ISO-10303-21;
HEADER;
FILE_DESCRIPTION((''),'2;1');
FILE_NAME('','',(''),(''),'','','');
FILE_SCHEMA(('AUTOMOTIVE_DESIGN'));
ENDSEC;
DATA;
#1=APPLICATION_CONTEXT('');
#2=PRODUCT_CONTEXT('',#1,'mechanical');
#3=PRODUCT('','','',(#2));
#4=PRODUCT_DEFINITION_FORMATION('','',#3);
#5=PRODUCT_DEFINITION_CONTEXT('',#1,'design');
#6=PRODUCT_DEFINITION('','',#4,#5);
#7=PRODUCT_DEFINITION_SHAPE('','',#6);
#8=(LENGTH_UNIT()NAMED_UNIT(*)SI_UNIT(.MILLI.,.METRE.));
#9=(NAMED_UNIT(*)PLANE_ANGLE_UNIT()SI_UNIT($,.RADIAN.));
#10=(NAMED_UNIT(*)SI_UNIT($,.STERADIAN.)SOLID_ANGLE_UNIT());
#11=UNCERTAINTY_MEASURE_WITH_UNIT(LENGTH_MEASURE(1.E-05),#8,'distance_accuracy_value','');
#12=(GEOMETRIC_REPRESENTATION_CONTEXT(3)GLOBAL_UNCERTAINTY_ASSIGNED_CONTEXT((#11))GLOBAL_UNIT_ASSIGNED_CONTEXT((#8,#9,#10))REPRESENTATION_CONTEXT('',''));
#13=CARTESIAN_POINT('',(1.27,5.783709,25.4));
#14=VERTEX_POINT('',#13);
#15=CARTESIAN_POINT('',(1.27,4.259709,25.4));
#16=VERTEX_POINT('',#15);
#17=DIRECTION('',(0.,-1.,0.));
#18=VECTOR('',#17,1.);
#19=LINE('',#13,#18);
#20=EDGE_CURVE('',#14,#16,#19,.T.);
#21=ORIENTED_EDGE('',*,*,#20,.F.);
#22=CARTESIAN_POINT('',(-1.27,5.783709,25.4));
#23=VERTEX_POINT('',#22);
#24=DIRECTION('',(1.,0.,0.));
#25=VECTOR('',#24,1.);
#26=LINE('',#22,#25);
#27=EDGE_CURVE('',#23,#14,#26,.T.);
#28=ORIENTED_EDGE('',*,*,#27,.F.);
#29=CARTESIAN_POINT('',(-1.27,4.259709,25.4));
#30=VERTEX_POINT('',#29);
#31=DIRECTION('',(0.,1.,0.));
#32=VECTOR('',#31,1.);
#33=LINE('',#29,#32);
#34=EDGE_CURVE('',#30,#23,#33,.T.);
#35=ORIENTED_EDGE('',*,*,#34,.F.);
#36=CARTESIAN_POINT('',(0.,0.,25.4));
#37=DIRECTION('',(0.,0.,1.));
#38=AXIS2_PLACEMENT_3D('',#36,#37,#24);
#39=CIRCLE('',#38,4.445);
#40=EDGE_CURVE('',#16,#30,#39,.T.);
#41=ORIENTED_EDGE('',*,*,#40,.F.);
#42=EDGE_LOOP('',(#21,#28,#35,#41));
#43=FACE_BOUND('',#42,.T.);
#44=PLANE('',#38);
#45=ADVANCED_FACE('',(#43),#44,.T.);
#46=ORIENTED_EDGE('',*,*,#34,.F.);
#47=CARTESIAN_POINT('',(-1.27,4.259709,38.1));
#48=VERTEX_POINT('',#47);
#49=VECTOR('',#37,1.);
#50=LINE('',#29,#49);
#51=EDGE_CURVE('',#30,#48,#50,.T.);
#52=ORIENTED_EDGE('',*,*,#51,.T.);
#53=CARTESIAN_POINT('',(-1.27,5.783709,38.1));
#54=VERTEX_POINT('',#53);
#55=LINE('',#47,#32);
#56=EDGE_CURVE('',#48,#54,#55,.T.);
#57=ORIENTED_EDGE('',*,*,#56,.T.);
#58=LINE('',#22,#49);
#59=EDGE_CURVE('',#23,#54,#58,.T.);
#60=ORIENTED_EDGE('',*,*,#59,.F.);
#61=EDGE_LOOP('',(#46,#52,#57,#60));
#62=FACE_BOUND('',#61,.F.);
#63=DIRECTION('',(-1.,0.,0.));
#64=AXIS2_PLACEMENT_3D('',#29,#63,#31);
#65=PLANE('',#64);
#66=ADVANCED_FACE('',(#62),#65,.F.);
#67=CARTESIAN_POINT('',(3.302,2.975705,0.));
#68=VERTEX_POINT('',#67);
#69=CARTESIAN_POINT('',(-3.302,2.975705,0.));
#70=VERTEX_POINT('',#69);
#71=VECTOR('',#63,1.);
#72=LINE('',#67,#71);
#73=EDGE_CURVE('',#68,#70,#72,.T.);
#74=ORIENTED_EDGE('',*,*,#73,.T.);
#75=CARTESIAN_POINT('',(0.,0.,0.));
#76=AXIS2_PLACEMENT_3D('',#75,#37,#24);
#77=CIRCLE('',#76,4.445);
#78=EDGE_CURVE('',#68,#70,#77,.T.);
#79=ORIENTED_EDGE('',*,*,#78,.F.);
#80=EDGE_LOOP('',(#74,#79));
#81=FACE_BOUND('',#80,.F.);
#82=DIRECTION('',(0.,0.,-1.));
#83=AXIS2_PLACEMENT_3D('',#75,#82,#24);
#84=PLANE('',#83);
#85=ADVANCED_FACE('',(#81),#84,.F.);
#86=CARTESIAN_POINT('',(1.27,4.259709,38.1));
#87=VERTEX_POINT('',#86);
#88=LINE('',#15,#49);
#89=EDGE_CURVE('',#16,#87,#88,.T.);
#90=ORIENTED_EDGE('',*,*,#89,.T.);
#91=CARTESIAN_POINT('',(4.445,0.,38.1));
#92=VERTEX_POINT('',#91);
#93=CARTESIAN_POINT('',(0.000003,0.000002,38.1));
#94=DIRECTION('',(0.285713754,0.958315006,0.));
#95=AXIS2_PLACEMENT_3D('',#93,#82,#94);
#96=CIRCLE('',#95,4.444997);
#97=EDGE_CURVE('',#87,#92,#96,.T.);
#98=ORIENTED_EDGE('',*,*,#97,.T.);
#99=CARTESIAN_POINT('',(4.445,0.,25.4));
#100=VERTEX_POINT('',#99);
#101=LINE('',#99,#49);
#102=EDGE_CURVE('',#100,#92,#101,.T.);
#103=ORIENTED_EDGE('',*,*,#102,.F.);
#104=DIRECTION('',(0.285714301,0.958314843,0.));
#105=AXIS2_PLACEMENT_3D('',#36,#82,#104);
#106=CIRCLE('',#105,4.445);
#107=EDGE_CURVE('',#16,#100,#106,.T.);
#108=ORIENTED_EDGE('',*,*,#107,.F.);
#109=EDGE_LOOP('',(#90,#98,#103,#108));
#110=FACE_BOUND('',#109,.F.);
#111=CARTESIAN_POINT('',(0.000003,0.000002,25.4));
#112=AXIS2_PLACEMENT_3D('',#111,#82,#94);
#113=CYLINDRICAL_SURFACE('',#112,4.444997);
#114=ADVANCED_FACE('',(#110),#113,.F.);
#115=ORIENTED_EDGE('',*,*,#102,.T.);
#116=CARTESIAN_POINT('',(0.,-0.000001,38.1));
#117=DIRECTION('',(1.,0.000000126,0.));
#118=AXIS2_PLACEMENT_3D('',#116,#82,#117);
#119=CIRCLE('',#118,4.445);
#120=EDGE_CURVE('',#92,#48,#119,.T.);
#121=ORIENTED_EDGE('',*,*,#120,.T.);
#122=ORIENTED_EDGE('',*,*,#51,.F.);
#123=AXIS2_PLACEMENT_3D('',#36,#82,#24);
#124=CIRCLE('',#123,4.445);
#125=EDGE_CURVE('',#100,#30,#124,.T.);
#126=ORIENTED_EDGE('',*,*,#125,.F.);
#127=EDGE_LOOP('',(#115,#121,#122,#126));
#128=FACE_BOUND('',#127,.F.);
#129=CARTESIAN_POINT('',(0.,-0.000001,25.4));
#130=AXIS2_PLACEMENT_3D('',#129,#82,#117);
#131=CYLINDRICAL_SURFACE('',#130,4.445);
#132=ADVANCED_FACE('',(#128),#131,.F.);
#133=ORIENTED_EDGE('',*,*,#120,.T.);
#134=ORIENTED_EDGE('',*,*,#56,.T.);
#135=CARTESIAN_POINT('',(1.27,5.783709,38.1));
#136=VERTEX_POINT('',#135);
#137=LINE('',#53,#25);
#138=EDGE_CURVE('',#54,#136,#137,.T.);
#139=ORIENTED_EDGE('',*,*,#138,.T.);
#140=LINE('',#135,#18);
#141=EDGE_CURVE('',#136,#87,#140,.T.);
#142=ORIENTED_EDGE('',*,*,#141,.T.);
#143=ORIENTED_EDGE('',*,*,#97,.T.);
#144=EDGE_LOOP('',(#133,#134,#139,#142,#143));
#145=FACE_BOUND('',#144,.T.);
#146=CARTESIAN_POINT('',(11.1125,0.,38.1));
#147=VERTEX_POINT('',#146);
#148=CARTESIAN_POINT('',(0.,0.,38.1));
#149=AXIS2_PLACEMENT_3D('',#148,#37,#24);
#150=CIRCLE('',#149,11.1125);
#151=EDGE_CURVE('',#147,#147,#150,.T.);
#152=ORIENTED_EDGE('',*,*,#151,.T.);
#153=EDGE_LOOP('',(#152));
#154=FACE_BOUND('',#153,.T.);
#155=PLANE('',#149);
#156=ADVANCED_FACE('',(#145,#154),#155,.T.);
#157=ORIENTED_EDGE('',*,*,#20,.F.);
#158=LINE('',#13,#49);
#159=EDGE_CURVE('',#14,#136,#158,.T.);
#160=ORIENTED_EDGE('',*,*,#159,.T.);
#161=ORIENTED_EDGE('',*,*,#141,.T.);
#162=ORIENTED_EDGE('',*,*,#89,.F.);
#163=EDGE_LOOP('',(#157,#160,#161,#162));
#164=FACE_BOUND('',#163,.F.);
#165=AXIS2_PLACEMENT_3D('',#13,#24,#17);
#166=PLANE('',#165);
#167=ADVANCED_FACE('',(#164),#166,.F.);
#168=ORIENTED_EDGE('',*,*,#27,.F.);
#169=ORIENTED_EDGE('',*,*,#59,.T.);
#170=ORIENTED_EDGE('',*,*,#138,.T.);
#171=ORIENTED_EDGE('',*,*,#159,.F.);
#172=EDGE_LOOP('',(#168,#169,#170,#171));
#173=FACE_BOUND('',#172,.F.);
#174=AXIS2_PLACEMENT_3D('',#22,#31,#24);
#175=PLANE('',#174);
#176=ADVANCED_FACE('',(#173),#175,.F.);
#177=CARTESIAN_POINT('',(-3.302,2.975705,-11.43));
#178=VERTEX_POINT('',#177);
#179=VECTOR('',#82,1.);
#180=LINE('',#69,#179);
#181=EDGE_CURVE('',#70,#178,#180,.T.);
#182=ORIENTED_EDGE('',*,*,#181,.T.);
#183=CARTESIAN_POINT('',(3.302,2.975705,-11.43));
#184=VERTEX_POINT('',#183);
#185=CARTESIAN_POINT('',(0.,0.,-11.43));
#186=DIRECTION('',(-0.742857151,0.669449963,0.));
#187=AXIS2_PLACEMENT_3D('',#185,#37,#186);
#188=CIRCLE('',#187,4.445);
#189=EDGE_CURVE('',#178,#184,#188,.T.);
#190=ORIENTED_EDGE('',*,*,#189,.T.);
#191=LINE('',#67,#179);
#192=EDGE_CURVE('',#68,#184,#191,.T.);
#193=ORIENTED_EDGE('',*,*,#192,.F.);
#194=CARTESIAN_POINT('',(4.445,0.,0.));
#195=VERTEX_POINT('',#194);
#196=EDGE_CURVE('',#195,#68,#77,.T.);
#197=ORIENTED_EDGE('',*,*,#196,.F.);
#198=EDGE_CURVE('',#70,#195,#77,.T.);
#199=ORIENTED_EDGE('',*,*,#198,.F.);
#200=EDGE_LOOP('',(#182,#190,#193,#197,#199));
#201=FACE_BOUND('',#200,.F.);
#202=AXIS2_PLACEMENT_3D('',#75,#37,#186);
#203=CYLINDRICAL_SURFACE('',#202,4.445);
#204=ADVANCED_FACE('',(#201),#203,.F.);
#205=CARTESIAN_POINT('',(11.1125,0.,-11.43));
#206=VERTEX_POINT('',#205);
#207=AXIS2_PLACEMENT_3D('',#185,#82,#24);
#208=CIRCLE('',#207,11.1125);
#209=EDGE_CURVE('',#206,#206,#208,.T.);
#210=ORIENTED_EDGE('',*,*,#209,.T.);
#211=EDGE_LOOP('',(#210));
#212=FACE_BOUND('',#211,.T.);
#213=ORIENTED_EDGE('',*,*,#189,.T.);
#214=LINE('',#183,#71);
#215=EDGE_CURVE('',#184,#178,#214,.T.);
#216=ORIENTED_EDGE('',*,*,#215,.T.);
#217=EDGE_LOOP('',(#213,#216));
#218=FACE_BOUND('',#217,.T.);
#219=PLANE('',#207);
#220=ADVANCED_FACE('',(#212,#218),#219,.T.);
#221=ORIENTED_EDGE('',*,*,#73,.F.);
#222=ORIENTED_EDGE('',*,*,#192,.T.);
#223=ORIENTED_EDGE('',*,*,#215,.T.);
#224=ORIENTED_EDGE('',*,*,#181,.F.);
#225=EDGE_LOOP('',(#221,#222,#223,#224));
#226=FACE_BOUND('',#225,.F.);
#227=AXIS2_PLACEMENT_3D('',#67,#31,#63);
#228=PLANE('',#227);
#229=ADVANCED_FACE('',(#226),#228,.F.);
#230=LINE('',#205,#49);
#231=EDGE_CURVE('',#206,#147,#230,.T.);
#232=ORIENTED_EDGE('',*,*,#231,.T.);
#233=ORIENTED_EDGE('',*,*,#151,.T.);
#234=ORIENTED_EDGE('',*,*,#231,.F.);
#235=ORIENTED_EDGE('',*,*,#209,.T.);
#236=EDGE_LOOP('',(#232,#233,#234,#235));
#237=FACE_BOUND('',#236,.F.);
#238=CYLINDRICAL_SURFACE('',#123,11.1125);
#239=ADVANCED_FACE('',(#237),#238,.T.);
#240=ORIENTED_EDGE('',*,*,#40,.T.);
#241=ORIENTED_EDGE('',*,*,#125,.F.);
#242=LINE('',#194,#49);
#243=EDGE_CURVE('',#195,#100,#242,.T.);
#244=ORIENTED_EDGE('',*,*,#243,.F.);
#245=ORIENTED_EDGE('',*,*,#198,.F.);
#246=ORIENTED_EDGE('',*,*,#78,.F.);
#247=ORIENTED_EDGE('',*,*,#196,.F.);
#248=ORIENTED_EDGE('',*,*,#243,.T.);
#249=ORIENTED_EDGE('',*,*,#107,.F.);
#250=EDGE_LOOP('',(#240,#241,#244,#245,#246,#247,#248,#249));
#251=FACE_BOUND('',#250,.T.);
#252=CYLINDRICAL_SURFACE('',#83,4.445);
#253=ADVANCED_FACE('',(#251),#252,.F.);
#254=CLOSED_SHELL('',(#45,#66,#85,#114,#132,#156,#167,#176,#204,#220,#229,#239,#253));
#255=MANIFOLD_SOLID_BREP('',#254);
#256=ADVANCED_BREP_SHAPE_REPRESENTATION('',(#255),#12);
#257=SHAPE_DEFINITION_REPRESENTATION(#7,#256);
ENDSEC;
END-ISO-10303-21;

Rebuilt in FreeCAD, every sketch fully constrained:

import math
import FreeCAD as App
import Part
import Sketcher
from FreeCAD import Vector
Q = App.Units.Quantity

doc = App.newDocument("Part")
params = doc.addObject("Spreadsheet::Sheet", "Params")
for row, (alias, value) in enumerate([
    ("sketch1_diameter", "0.35 in"),
    ("sketch1_diameter2", "0.875 in"),
    ("pad1_length", "1 in"),
    ("sketch2_diameter", "0.875 in"),
    ("sketch2_radius", "0.175 in"),
    ("sketch2_width", "0.26 in"),
    ("pad2_length", "0.45 in"),
    ("sketch3_diameter", "0.875 in"),
    ("sketch3_width", "0.1 in"),
    ("sketch3_radius", "0.1749999 in"),
    ("sketch3_height", "0.06 in"),
    ("pad3_length", "0.5 in"),
], start=1):
    params.set(f"A{row}", alias)
    params.set(f"B{row}", "=" + value)
    params.setAlias(f"B{row}", alias)

body = doc.addObject("PartDesign::Body", "Body")

# Sketch on XY plane
sketch1 = body.newObject("Sketcher::SketchObject", "Sketch")
sketch1.AttachmentSupport = (doc.getObject("XY_Plane"), [""])
sketch1.MapMode = "FlatFace"
sketch1.addGeometry([
    Part.Circle(Vector(0, 0, 0), Vector(0, 0, 1), 11.1125),
    Part.Circle(Vector(0, 0, 0), Vector(0, 0, 1), 4.445),
], False)
sketch1.addConstraint([
    Sketcher.Constraint("Coincident", 0, 3, -1, 1),
    Sketcher.Constraint("Coincident", 1, 3, -1, 1),
    Sketcher.Constraint("Diameter", 1, Q("0.35 in")),
    Sketcher.Constraint("Diameter", 0, Q("0.875 in")),
])
sketch1.setExpression("Constraints[2]", "Params.sketch1_diameter")
sketch1.setExpression("Constraints[3]", "Params.sketch1_diameter2")
pad1 = body.newObject("PartDesign::Pad", "Pad")
pad1.Profile = sketch1
pad1.setExpression("Length", "Params.pad1_length")

# Sketch on XY plane
sketch2 = body.newObject("Sketcher::SketchObject", "Sketch001")
sketch2.AttachmentSupport = (doc.getObject("XY_Plane"), [""])
sketch2.MapMode = "FlatFace"
sketch2.addGeometry([
    Part.Circle(Vector(0, 0, 0), Vector(0, 0, 1), 11.1125),
    Part.LineSegment(Vector(3.302, 2.975705, 0), Vector(-3.302, 2.975705, 0)),
    Part.ArcOfCircle(Part.Circle(Vector(0, 0, 0), Vector(0, 0, 1), 4.445), math.radians(137.975373), math.radians(402.024627)),
], False)
sketch2.addConstraint([
    Sketcher.Constraint("Coincident", 1, 1, 2, 2),
    Sketcher.Constraint("Coincident", 2, 1, 1, 2),
    Sketcher.Constraint("Horizontal", 1),
    Sketcher.Constraint("Coincident", 0, 3, -1, 1),
    Sketcher.Constraint("Coincident", 2, 3, -1, 1),
    Sketcher.Constraint("Diameter", 0, Q("0.875 in")),
    Sketcher.Constraint("Radius", 2, Q("0.175 in")),
    Sketcher.Constraint("DistanceX", 1, 2, 1, 1, Q("0.26 in")),
])
sketch2.setExpression("Constraints[5]", "Params.sketch2_diameter")
sketch2.setExpression("Constraints[6]", "Params.sketch2_radius")
sketch2.setExpression("Constraints[7]", "Params.sketch2_width")
pad2 = body.newObject("PartDesign::Pad", "Pad001")
pad2.Profile = sketch2
pad2.setExpression("Length", "Params.pad2_length")
pad2.Reversed = True

# Sketch on XY plane
sketch3 = body.newObject("Sketcher::SketchObject", "Sketch002")
sketch3.AttachmentSupport = (doc.getObject("XY_Plane"), [""])
sketch3.MapMode = "FlatFace"
sketch3.AttachmentOffset = App.Placement(Vector(0, 0, 1 * 25.4), App.Rotation())
sketch3.addGeometry([
    Part.Circle(Vector(0, 0, 0), Vector(0, 0, 1), 11.1125),  # 0
    Part.ArcOfCircle(Part.Circle(Vector(0.000003, 0.000002, 0), Vector(0, 0, 1), 4.444997), math.radians(-0.000025), math.radians(73.398482)),  # 1
    Part.ArcOfCircle(Part.Circle(Vector(0, -0.000001, 0), Vector(0, 0, 1), 4.445), math.radians(106.601549), math.radians(360.000007)),  # 2
    Part.LineSegment(Vector(-1.27, 4.259709, 0), Vector(-1.27, 5.783709, 0)),  # 3
    Part.LineSegment(Vector(-1.27, 5.783709, 0), Vector(1.27, 5.783709, 0)),  # 4
    Part.LineSegment(Vector(1.27, 5.783709, 0), Vector(1.27, 4.259709, 0)),  # 5
], False)
sketch3.addConstraint([
    Sketcher.Constraint("Tangent", 1, 1, 2, 2),
    Sketcher.Constraint("Coincident", 2, 1, 3, 1),
    Sketcher.Constraint("Coincident", 3, 2, 4, 1),
    Sketcher.Constraint("Coincident", 4, 2, 5, 1),
    Sketcher.Constraint("Coincident", 5, 2, 1, 2),
    Sketcher.Constraint("Vertical", 3),
    Sketcher.Constraint("Horizontal", 4),
    Sketcher.Constraint("Vertical", 5),
    Sketcher.Constraint("Coincident", 0, 3, -1, 1),
    Sketcher.Constraint("Coincident", 1, 3, -1, 1),
    Sketcher.Constraint("Symmetric", 2, 1, 5, 2, -2),
    Sketcher.Constraint("PointOnObject", 1, 1, -1),
    Sketcher.Constraint("Diameter", 0, Q("0.875 in")),
    Sketcher.Constraint("DistanceX", 4, 1, 4, 2, Q("0.1 in")),
    Sketcher.Constraint("Radius", 1, Q("0.1749999 in")),
    Sketcher.Constraint("DistanceY", 3, 1, 3, 2, Q("0.06 in")),
])
sketch3.setExpression("Constraints[12]", "Params.sketch3_diameter")
sketch3.setExpression("Constraints[13]", "Params.sketch3_width")
sketch3.setExpression("Constraints[14]", "Params.sketch3_radius")
sketch3.setExpression("Constraints[15]", "Params.sketch3_height")
pad3 = body.newObject("PartDesign::Pad", "Pad002")
pad3.Profile = sketch3
pad3.setExpression("Length", "Params.pad3_length")

doc.recompute()
